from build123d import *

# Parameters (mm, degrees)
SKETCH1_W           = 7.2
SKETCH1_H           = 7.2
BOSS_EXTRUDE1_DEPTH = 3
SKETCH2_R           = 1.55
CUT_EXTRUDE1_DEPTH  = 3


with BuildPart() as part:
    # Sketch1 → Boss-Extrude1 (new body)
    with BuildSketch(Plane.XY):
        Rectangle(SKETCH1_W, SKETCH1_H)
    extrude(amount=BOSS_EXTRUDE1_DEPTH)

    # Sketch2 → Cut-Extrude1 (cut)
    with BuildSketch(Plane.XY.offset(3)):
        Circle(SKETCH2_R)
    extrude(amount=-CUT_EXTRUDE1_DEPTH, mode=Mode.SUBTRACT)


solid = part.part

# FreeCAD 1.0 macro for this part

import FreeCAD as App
import Part
import Sketcher


def add_polygon(sketch, points):
    """Adds a closed chain of lines whose ends are joined by coincident constraints."""
    first, n = sketch.GeometryCount, len(points)
    for a, b in zip(points, points[1:] + points[:1]):
        sketch.addGeometry(Part.LineSegment(App.Vector(*a, 0), App.Vector(*b, 0)), False)
    for i in range(n):
        sketch.addConstraint(Sketcher.Constraint("Coincident", first + i, 2, first + (i + 1) % n, 1))

doc = App.newDocument("Part")
params = doc.addObject("Spreadsheet::Sheet", "Params")
for row, (alias, value) in enumerate([
    ("sketch1_width", "7.2 mm"),
    ("pad1_length", "3 mm"),
    ("sketch2_diameter", "3.1 mm"),
    ("pocket1_length", "3 mm"),
], start=1):
    params.set(f"A{row}", alias)
    params.set(f"B{row}", "=" + value)
    params.setAlias(f"B{row}", alias)

body = doc.addObject("PartDesign::Body", "Body")

sketch1 = body.newObject("Sketcher::SketchObject", "Sketch")
sketch1.AttachmentSupport = (doc.getObject("XY_Plane"), [""])
sketch1.MapMode = "FlatFace"
add_polygon(sketch1, [(-4, 4), (-4, -4), (4, -4), (4, 4)])
sketch1.addConstraint(Sketcher.Constraint("Vertical", 0))
sketch1.addConstraint(Sketcher.Constraint("Horizontal", 1))
sketch1.addConstraint(Sketcher.Constraint("Vertical", 2))
sketch1.addConstraint(Sketcher.Constraint("Horizontal", 3))
sketch1.addConstraint(Sketcher.Constraint("Symmetric", 0, 2, 2, 2, -1, 1))
sketch1.addConstraint(Sketcher.Constraint("Equal", 3, 0))
sketch1.addConstraint(Sketcher.Constraint("DistanceX", 1, 1, 1, 2, 7.2))
sketch1.setExpression("Constraints[10]", "Params.sketch1_width")
pad1 = body.newObject("PartDesign::Pad", "Pad")
pad1.Profile = sketch1
pad1.setExpression("Length", "Params.pad1_length")

sketch2 = body.newObject("Sketcher::SketchObject", "Sketch001")
sketch2.AttachmentSupport = (doc.getObject("XY_Plane"), [""])
sketch2.MapMode = "FlatFace"
sketch2.AttachmentOffset = App.Placement(App.Vector(0, 0, 3), App.Rotation())
sketch2.addGeometry(Part.Circle(App.Vector(0, 0, 0), App.Vector(0, 0, 1), 1.6), False)
sketch2.addConstraint(Sketcher.Constraint("Coincident", 0, 3, -1, 1))
sketch2.addConstraint(Sketcher.Constraint("Diameter", 0, 3.1))
sketch2.setExpression("Constraints[1]", "Params.sketch2_diameter")
pocket1 = body.newObject("PartDesign::Pocket", "Pocket")
pocket1.Profile = sketch2
pocket1.setExpression("Length", "Params.pocket1_length")

doc.recompute()
